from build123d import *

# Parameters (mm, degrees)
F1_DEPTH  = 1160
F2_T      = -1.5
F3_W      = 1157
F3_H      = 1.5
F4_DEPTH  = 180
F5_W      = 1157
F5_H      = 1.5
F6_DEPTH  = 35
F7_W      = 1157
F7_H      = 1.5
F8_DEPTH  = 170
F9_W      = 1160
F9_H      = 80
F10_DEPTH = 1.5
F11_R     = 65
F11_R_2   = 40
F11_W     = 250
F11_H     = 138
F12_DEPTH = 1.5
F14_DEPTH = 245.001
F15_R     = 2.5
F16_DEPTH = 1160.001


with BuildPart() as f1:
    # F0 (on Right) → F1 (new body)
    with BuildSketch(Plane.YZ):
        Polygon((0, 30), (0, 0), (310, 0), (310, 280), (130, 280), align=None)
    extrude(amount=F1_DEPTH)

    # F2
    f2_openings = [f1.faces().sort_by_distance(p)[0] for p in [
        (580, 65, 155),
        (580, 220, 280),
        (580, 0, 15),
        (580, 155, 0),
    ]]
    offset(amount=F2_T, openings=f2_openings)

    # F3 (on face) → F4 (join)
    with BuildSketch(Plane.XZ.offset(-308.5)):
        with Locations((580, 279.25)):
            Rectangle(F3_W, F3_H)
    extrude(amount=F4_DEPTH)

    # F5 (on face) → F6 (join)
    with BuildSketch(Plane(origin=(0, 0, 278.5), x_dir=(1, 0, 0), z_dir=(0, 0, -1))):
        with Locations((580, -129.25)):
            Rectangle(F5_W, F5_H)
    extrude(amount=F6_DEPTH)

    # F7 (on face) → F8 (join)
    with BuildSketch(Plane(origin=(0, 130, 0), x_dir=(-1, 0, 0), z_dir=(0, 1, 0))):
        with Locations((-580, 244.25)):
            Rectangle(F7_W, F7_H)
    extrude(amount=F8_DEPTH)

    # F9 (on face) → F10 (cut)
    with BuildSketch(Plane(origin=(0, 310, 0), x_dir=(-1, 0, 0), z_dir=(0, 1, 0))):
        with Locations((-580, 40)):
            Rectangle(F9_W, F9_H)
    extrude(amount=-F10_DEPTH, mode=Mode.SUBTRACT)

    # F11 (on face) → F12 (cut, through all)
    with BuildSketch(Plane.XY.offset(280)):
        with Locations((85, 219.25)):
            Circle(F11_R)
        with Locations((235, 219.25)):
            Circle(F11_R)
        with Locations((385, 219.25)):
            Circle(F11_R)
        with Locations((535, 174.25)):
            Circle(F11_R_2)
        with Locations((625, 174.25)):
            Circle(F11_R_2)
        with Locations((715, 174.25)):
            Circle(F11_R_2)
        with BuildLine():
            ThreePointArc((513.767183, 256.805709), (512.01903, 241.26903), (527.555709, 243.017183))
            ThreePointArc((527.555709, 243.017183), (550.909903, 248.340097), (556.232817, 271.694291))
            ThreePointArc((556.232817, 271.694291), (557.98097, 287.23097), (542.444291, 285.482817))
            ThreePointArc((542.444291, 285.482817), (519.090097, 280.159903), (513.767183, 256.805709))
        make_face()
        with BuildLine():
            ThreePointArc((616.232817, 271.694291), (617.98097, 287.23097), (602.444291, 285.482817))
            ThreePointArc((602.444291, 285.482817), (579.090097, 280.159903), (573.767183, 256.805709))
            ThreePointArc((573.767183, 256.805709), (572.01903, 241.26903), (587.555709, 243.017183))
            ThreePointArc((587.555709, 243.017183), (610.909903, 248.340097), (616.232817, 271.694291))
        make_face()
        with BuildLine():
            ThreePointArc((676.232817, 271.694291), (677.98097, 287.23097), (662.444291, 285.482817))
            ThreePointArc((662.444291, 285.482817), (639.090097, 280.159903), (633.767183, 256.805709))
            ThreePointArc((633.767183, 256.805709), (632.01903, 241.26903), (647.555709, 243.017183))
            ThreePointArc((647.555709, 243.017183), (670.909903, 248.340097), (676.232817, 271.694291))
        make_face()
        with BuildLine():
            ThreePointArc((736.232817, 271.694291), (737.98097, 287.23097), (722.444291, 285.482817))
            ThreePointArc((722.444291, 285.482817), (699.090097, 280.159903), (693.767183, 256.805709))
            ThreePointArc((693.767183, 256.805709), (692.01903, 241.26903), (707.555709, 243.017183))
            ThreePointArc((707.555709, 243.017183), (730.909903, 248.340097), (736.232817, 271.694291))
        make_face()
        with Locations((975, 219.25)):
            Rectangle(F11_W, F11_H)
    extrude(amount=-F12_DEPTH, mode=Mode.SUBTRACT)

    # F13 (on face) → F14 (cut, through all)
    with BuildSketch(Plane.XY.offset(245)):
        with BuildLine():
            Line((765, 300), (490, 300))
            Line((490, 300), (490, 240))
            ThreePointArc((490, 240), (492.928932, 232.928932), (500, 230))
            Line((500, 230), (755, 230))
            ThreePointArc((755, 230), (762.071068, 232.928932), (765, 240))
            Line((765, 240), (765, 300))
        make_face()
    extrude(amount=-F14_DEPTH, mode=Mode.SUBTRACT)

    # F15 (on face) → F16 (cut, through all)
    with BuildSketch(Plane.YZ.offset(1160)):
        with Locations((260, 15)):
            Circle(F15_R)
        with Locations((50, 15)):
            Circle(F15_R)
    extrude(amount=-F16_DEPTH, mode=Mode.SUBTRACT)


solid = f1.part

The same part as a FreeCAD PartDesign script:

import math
import FreeCAD as App
import Part
import Sketcher

V = App.Vector


def faces_at(feature, points):
    """Names of the faces that lie closest to the given points."""
    faces = feature.Shape.Faces
    near = lambda p: min(range(len(faces)), key=lambda i: faces[i].distToShape(Part.Vertex(*p))[0])
    return sorted({f"Face{near(p) + 1}" for p in points})

doc = App.newDocument("Part")
body = doc.addObject("PartDesign::Body", "Body")

# Sketch on YZ plane
sketch1 = body.newObject("Sketcher::SketchObject", "Sketch")
sketch1.AttachmentSupport = (doc.getObject("YZ_Plane"), [""])
sketch1.MapMode = "FlatFace"
sketch1.addGeometry([
    Part.LineSegment(V(0, 30, 0), V(0, 0, 0)),  # 0
    Part.LineSegment(V(0, 0, 0), V(310, 0, 0)),  # 1
    Part.LineSegment(V(310, 0, 0), V(310, 280, 0)),  # 2
    Part.LineSegment(V(310, 280, 0), V(130, 280, 0)),  # 3
    Part.LineSegment(V(130, 280, 0), V(0, 30, 0)),  # 4
], False)
sketch1.addConstraint([
    Sketcher.Constraint("Coincident", 0, 2, 1, 1),
    Sketcher.Constraint("Coincident", 1, 2, 2, 1),
    Sketcher.Constraint("Coincident", 2, 2, 3, 1),
    Sketcher.Constraint("Coincident", 3, 2, 4, 1),
    Sketcher.Constraint("Coincident", 4, 2, 0, 1),
    Sketcher.Constraint("Vertical", 0),
    Sketcher.Constraint("Horizontal", 1),
    Sketcher.Constraint("Vertical", 2),
    Sketcher.Constraint("Horizontal", 3),
    Sketcher.Constraint("Coincident", 0, 2, -1, 1),
    Sketcher.Constraint("DistanceX", 1, 1, 1, 2, 310.0),
    Sketcher.Constraint("DistanceX", 3, 2, 3, 1, 180.0),
    Sketcher.Constraint("DistanceY", 0, 2, 0, 1, 30.0),
    Sketcher.Constraint("DistanceY", 2, 1, 2, 2, 280.0),
])
pad1 = body.newObject("PartDesign::Pad", "Pad")
pad1.Profile = sketch1
pad1.Length = 1160
doc.recompute()

thickness = body.newObject("PartDesign::Thickness", "Thickness")
thickness.Base = (pad1, faces_at(pad1, [
    (580, 65, 155),
    (580, 220, 280),
    (580, 0, 15),
    (580, 155, 0),
]))
thickness.Value = 1.5
thickness.Reversed = True
thickness.Join = "Arc"

# Sketch on XZ plane
sketch2 = body.newObject("Sketcher::SketchObject", "Sketch001")
sketch2.AttachmentSupport = (doc.getObject("XZ_Plane"), [""])
sketch2.MapMode = "FlatFace"
sketch2.AttachmentOffset = App.Placement(V(0, 0, -308.5), App.Rotation())
sketch2.addGeometry([
    Part.LineSegment(V(1.5, 280, 0), V(1.5, 278.5, 0)),
    Part.LineSegment(V(1.5, 278.5, 0), V(1158.5, 278.5, 0)),
    Part.LineSegment(V(1158.5, 278.5, 0), V(1158.5, 280, 0)),
    Part.LineSegment(V(1158.5, 280, 0), V(1.5, 280, 0)),
], False)
sketch2.addConstraint([
    Sketcher.Constraint("Coincident", 0, 2, 1, 1),
    Sketcher.Constraint("Coincident", 1, 2, 2, 1),
    Sketcher.Constraint("Coincident", 2, 2, 3, 1),
    Sketcher.Constraint("Coincident", 3, 2, 0, 1),
    Sketcher.Constraint("Vertical", 0),
    Sketcher.Constraint("Horizontal", 1),
    Sketcher.Constraint("Vertical", 2),
    Sketcher.Constraint("Horizontal", 3),
    Sketcher.Constraint("DistanceX", 1, 1, 1, 2, 1157.0),
    Sketcher.Constraint("DistanceY", 0, 2, 0, 1, 1.5),
    Sketcher.Constraint("DistanceY", -1, 1, 2, 2, 280.0),
    Sketcher.Constraint("DistanceX", -1, 1, 0, 2, 1.5),
])
pad2 = body.newObject("PartDesign::Pad", "Pad001")
pad2.Profile = sketch2
pad2.Length = 180

# Sketch on XY plane
sketch3 = body.newObject("Sketcher::SketchObject", "Sketch002")
sketch3.AttachmentSupport = (doc.getObject("XY_Plane"), [""])
sketch3.MapMode = "FlatFace"
sketch3.AttachmentOffset = App.Placement(V(0, 0, 278.5), App.Rotation())
sketch3.addGeometry([
    Part.LineSegment(V(1.5, 128.5, 0), V(1.5, 130, 0)),
    Part.LineSegment(V(1.5, 130, 0), V(1158.5, 130, 0)),
    Part.LineSegment(V(1158.5, 130, 0), V(1158.5, 128.5, 0)),
    Part.LineSegment(V(1158.5, 128.5, 0), V(1.5, 128.5, 0)),
], False)
sketch3.addConstraint([
    Sketcher.Constraint("Coincident", 0, 2, 1, 1),
    Sketcher.Constraint("Coincident", 1, 2, 2, 1),
    Sketcher.Constraint("Coincident", 2, 2, 3, 1),
    Sketcher.Constraint("Coincident", 3, 2, 0, 1),
    Sketcher.Constraint("Vertical", 0),
    Sketcher.Constraint("Horizontal", 1),
    Sketcher.Constraint("Vertical", 2),
    Sketcher.Constraint("Horizontal", 3),
    Sketcher.Constraint("DistanceX", 1, 1, 1, 2, 1157.0),
    Sketcher.Constraint("DistanceY", 0, 1, 0, 2, 1.5),
    Sketcher.Constraint("DistanceY", -1, 1, 0, 2, 130.0),
    Sketcher.Constraint("DistanceX", -1, 1, 0, 2, 1.5),
])
pad3 = body.newObject("PartDesign::Pad", "Pad002")
pad3.Profile = sketch3
pad3.Length = 35
pad3.Reversed = True

# Sketch on XZ plane
sketch4 = body.newObject("Sketcher::SketchObject", "Sketch003")
sketch4.AttachmentSupport = (doc.getObject("XZ_Plane"), [""])
sketch4.MapMode = "FlatFace"
sketch4.AttachmentOffset = App.Placement(V(0, 0, -130), App.Rotation())
sketch4.addGeometry([
    Part.LineSegment(V(1158.5, 245, 0), V(1158.5, 243.5, 0)),
    Part.LineSegment(V(1158.5, 243.5, 0), V(1.5, 243.5, 0)),
    Part.LineSegment(V(1.5, 243.5, 0), V(1.5, 245, 0)),
    Part.LineSegment(V(1.5, 245, 0), V(1158.5, 245, 0)),
], False)
sketch4.addConstraint([
    Sketcher.Constraint("Coincident", 0, 2, 1, 1),
    Sketcher.Constraint("Coincident", 1, 2, 2, 1),
    Sketcher.Constraint("Coincident", 2, 2, 3, 1),
    Sketcher.Constraint("Coincident", 3, 2, 0, 1),
    Sketcher.Constraint("Vertical", 0),
    Sketcher.Constraint("Horizontal", 1),
    Sketcher.Constraint("Vertical", 2),
    Sketcher.Constraint("Horizontal", 3),
    Sketcher.Constraint("DistanceX", 1, 2, 1, 1, 1157.0),
    Sketcher.Constraint("DistanceY", 0, 2, 0, 1, 1.5),
    Sketcher.Constraint("DistanceY", -1, 1, 2, 2, 245.0),
    Sketcher.Constraint("DistanceX", -1, 1, 0, 2, 1158.5),
])
pad4 = body.newObject("PartDesign::Pad", "Pad003")
pad4.Profile = sketch4
pad4.Length = 170
pad4.Reversed = True

# Sketch on XZ plane
sketch5 = body.newObject("Sketcher::SketchObject", "Sketch004")
sketch5.AttachmentSupport = (doc.getObject("XZ_Plane"), [""])
sketch5.MapMode = "FlatFace"
sketch5.AttachmentOffset = App.Placement(V(0, 0, -310), App.Rotation())
sketch5.addGeometry([
    Part.LineSegment(V(1160, 80, 0), V(1160, 0, 0)),
    Part.LineSegment(V(1160, 0, 0), V(0, 0, 0)),
    Part.LineSegment(V(0, 0, 0), V(0, 80, 0)),
    Part.LineSegment(V(0, 80, 0), V(1160, 80, 0)),
], False)
sketch5.addConstraint([
    Sketcher.Constraint("Coincident", 0, 2, 1, 1),
    Sketcher.Constraint("Coincident", 1, 2, 2, 1),
    Sketcher.Constraint("Coincident", 2, 2, 3, 1),
    Sketcher.Constraint("Coincident", 3, 2, 0, 1),
    Sketcher.Constraint("Vertical", 0),
    Sketcher.Constraint("Horizontal", 1),
    Sketcher.Constraint("Vertical", 2),
    Sketcher.Constraint("Horizontal", 3),
    Sketcher.Constraint("Coincident", 1, 2, -1, 1),
    Sketcher.Constraint("DistanceX", 1, 2, 1, 1, 1160.0),
    Sketcher.Constraint("DistanceY", 0, 2, 0, 1, 80.0),
])
pocket1 = body.newObject("PartDesign::Pocket", "Pocket")
pocket1.Profile = sketch5
pocket1.Length = 1.5
pocket1.Reversed = True

# Sketch on XY plane
sketch6 = body.newObject("Sketcher::SketchObject", "Sketch005")
sketch6.AttachmentSupport = (doc.getObject("XY_Plane"), [""])
sketch6.MapMode = "FlatFace"
sketch6.AttachmentOffset = App.Placement(V(0, 0, 280), App.Rotation())
sketch6.addGeometry([
    Part.Circle(V(85, 219, 0), V(0, 0, 1), 65),  # 0
    Part.Circle(V(235, 219, 0), V(0, 0, 1), 65),  # 1
    Part.Circle(V(385, 219, 0), V(0, 0, 1), 65),  # 2
    Part.Circle(V(535, 174, 0), V(0, 0, 1), 40),  # 3
    Part.Circle(V(625, 174, 0), V(0, 0, 1), 40),  # 4
    Part.Circle(V(715, 174, 0), V(0, 0, 1), 40),  # 5
    Part.ArcOfCircle(Part.Circle(V(519, 248, 0), V(0, 0, 1), 10), math.radians(122), math.radians(328)),  # 6
    Part.ArcOfCircle(Part.Circle(V(535, 264, 0), V(0, 0, 1), 22), math.radians(-109), math.radians(19)),  # 7
    Part.ArcOfCircle(Part.Circle(V(551, 280, 0), V(0, 0, 1), 10), math.radians(-58), math.radians(148)),  # 8
    Part.ArcOfCircle(Part.Circle(V(535, 264, 0), V(0, 0, 1), 22), math.radians(71), math.radians(199)),  # 9
    Part.ArcOfCircle(Part.Circle(V(611, 280, 0), V(0, 0, 1), 10), math.radians(-58), math.radians(148)),  # 10
    Part.ArcOfCircle(Part.Circle(V(595, 264, 0), V(0, 0, 1), 22), math.radians(71), math.radians(199)),  # 11
    Part.ArcOfCircle(Part.Circle(V(579, 248, 0), V(0, 0, 1), 10), math.radians(122), math.radians(328)),  # 12
    Part.ArcOfCircle(Part.Circle(V(595, 264, 0), V(0, 0, 1), 22), math.radians(-109), math.radians(19)),  # 13
    Part.ArcOfCircle(Part.Circle(V(671, 280, 0), V(0, 0, 1), 10), math.radians(-58), math.radians(148)),  # 14
    Part.ArcOfCircle(Part.Circle(V(655, 264, 0), V(0, 0, 1), 22), math.radians(71), math.radians(199)),  # 15
    Part.ArcOfCircle(Part.Circle(V(639, 248, 0), V(0, 0, 1), 10), math.radians(122), math.radians(328)),  # 16
    Part.ArcOfCircle(Part.Circle(V(655, 264, 0), V(0, 0, 1), 22), math.radians(-109), math.radians(19)),  # 17
    Part.ArcOfCircle(Part.Circle(V(731, 280, 0), V(0, 0, 1), 10), math.radians(-58), math.radians(148)),  # 18
    Part.ArcOfCircle(Part.Circle(V(715, 264, 0), V(0, 0, 1), 22), math.radians(71), math.radians(199)),  # 19
    Part.ArcOfCircle(Part.Circle(V(699, 248, 0), V(0, 0, 1), 10), math.radians(122), math.radians(328)),  # 20
    Part.ArcOfCircle(Part.Circle(V(715, 264, 0), V(0, 0, 1), 22), math.radians(-109), math.radians(19)),  # 21
    Part.LineSegment(V(850, 288, 0), V(850, 150, 0)),  # 22
    Part.LineSegment(V(850, 150, 0), V(1100, 150, 0)),  # 23
    Part.LineSegment(V(1100, 150, 0), V(1100, 288, 0)),  # 24
    Part.LineSegment(V(1100, 288, 0), V(850, 288, 0)),  # 25
], False)
sketch6.addConstraint([
    Sketcher.Constraint("Coincident", 6, 2, 7, 1),
    Sketcher.Constraint("Coincident", 7, 2, 8, 1),
    Sketcher.Constraint("Coincident", 8, 2, 9, 1),
    Sketcher.Constraint("Coincident", 9, 2, 6, 1),
    Sketcher.Constraint("Coincident", 10, 2, 11, 1),
    Sketcher.Constraint("Coincident", 11, 2, 12, 1),
    Sketcher.Constraint("Coincident", 12, 2, 13, 1),
    Sketcher.Constraint("Coincident", 13, 2, 10, 1),
    Sketcher.Constraint("Coincident", 14, 2, 15, 1),
    Sketcher.Constraint("Coincident", 15, 2, 16, 1),
    Sketcher.Constraint("Coincident", 16, 2, 17, 1),
    Sketcher.Constraint("Coincident", 17, 2, 14, 1),
    Sketcher.Constraint("Coincident", 18, 2, 19, 1),
    Sketcher.Constraint("Coincident", 19, 2, 20, 1),
    Sketcher.Constraint("Coincident", 20, 2, 21, 1),
    Sketcher.Constraint("Coincident", 21, 2, 18, 1),
    Sketcher.Constraint("Coincident", 22, 2, 23, 1),
    Sketcher.Constraint("Coincident", 23, 2, 24, 1),
    Sketcher.Constraint("Coincident", 24, 2, 25, 1),
    Sketcher.Constraint("Coincident", 25, 2, 22, 1),
    Sketcher.Constraint("Vertical", 22),
    Sketcher.Constraint("Horizontal", 23),
    Sketcher.Constraint("Vertical", 24),
    Sketcher.Constraint("Horizontal", 25),
    Sketcher.Constraint("Coincident", 9, 3, 7, 3),
    Sketcher.Constraint("Coincident", 13, 3, 11, 3),
    Sketcher.Constraint("Coincident", 17, 3, 15, 3),
    Sketcher.Constraint("Coincident", 21, 3, 19, 3),
    Sketcher.Constraint("Equal", 0, 1),
    Sketcher.Constraint("Equal", 1, 2),
    Sketcher.Constraint("Equal", 3, 4),
    Sketcher.Constraint("Equal", 4, 5),
    Sketcher.Constraint("Equal", 6, 8),
    Sketcher.Constraint("Equal", 7, 9),
    Sketcher.Constraint("Equal", 8, 10),
    Sketcher.Constraint("Equal", 9, 11),
    Sketcher.Constraint("Equal", 10, 12),
    Sketcher.Constraint("Equal", 11, 13),
    Sketcher.Constraint("Equal", 12, 14),
    Sketcher.Constraint("Equal", 13, 15),
    Sketcher.Constraint("Equal", 14, 16),
    Sketcher.Constraint("Equal", 15, 17),
    Sketcher.Constraint("Equal", 16, 18),
    Sketcher.Constraint("Equal", 17, 19),
    Sketcher.Constraint("Equal", 18, 20),
    Sketcher.Constraint("Equal", 19, 21),
    Sketcher.Constraint("Horizontal", 0, 3, 1, 3),
    Sketcher.Constraint("Horizontal", 1, 3, 2, 3),
    Sketcher.Constraint("Horizontal", 3, 3, 4, 3),
    Sketcher.Constraint("Horizontal", 4, 3, 5, 3),
    Sketcher.Constraint("Horizontal", 8, 3, 10, 3),
    Sketcher.Constraint("Horizontal", 9, 3, 11, 3),
    Sketcher.Constraint("Horizontal", 6, 3, 12, 3),
    Sketcher.Constraint("Horizontal", 10, 3, 14, 3),
    Sketcher.Constraint("Horizontal", 11, 3, 15, 3),
    Sketcher.Constraint("Horizontal", 12, 3, 16, 3),
    Sketcher.Constraint("Horizontal", 14, 3, 18, 3),
    Sketcher.Constraint("Horizontal", 15, 3, 19, 3),
    Sketcher.Constraint("Horizontal", 16, 3, 20, 3),
    Sketcher.Constraint("Horizontal", 8, 2, 10, 2),
    Sketcher.Constraint("Horizontal", 9, 2, 11, 2),
    Sketcher.Constraint("Horizontal", 10, 2, 14, 2),
    Sketcher.Constraint("Horizontal", 11, 2, 15, 2),
    Sketcher.Constraint("Horizontal", 14, 2, 18, 2),
    Sketcher.Constraint("Horizontal", 15, 2, 19, 2),
    Sketcher.Constraint("Vertical", 3, 3, 7, 3),
    Sketcher.Constraint("Vertical", 5, 3, 19, 3),
    Sketcher.Constraint("Diameter", 0, 130.0),
    Sketcher.Constraint("Diameter", 3, 80.0),
    Sketcher.Constraint("Radius", 6, 10.0),
    Sketcher.Constraint("Radius", 7, 22.499999),
    Sketcher.Constraint("DistanceX", 23, 1, 23, 2, 250.0),
    Sketcher.Constraint("DistanceY", 22, 2, 22, 1, 138.0),
    Sketcher.Constraint("DistanceX", -1, 1, 0, 3, 85.0),
    Sketcher.Constraint("DistanceX", -1, 1, 1, 3, 235.0),
    Sketcher.Constraint("DistanceX", -1, 1, 2, 3, 385.0),
    Sketcher.Constraint("DistanceX", -1, 1, 3, 3, 535.0),
    Sketcher.Constraint("DistanceX", -1, 1, 4, 3, 625.0),
    Sketcher.Constraint("DistanceX", -1, 1, 5, 3, 715.0),
    Sketcher.Constraint("DistanceX", -1, 1, 11, 3, 594.999999),
    Sketcher.Constraint("DistanceX", -1, 1, 15, 3, 654.999999),
    Sketcher.Constraint("DistanceX", -1, 1, 22, 2, 850.0),
    Sketcher.Constraint("DistanceY", 3, 3, 2, 3, 45.0),
    Sketcher.Constraint("DistanceY", 3, 3, 7, 3, 89.999999),
    Sketcher.Constraint("DistanceY", 22, 2, 5, 3, 24.0),
    Sketcher.Constraint("DistanceY", -1, 1, 0, 3, 219.25),
    Sketcher.Constraint("DistanceY", 6, 3, 7, 3, 15.909901),
    Sketcher.Constraint("DistanceX", 7, 3, 8, 3, 15.909901),
    Sketcher.Constraint("DistanceX", 6, 3, 9, 3, 15.909901),
    Sketcher.Constraint("DistanceY", 9, 3, 8, 3, 15.909901),
])
pocket2 = body.newObject("PartDesign::Pocket", "Pocket001")
pocket2.Profile = sketch6
pocket2.Length = 1.5

# Sketch on XY plane
sketch7 = body.newObject("Sketcher::SketchObject", "Sketch006")
sketch7.AttachmentSupport = (doc.getObject("XY_Plane"), [""])
sketch7.MapMode = "FlatFace"
sketch7.AttachmentOffset = App.Placement(V(0, 0, 245), App.Rotation())
sketch7.addGeometry([
    Part.LineSegment(V(765, 300, 0), V(490, 300, 0)),  # 0
    Part.LineSegment(V(490, 300, 0), V(490, 240, 0)),  # 1
    Part.ArcOfCircle(Part.Circle(V(500, 240, 0), V(0, 0, 1), 10), math.radians(180), math.radians(270)),  # 2
    Part.LineSegment(V(500, 230, 0), V(755, 230, 0)),  # 3
    Part.ArcOfCircle(Part.Circle(V(755, 240, 0), V(0, 0, 1), 10), math.radians(-90), math.radians(0)),  # 4
    Part.LineSegment(V(765, 240, 0), V(765, 300, 0)),  # 5
], False)
sketch7.addConstraint([
    Sketcher.Constraint("Coincident", 0, 2, 1, 1),
    Sketcher.Constraint("Tangent", 1, 2, 2, 1),
    Sketcher.Constraint("Tangent", 2, 2, 3, 1),
    Sketcher.Constraint("Tangent", 3, 2, 4, 1),
    Sketcher.Constraint("Tangent", 4, 2, 5, 1),
    Sketcher.Constraint("Coincident", 5, 2, 0, 1),
    Sketcher.Constraint("Horizontal", 0),
    Sketcher.Constraint("Vertical", 1),
    Sketcher.Constraint("Horizontal", 3),
    Sketcher.Constraint("Vertical", 5),
    Sketcher.Constraint("Equal", 2, 4),
    Sketcher.Constraint("Radius", 2, 9.999999),
    Sketcher.Constraint("DistanceX", 0, 2, 0, 1, 275.0),
    Sketcher.Constraint("DistanceY", 1, 2, 1, 1, 60.0),
    Sketcher.Constraint("DistanceX", -1, 1, 2, 3, 499.999999),
    Sketcher.Constraint("DistanceY", -1, 1, 2, 3, 239.999999),
])
pocket3 = body.newObject("PartDesign::Pocket", "Pocket002")
pocket3.Profile = sketch7
pocket3.Type = "ThroughAll"

# Sketch on YZ plane
sketch8 = body.newObject("Sketcher::SketchObject", "Sketch007")
sketch8.AttachmentSupport = (doc.getObject("YZ_Plane"), [""])
sketch8.MapMode = "FlatFace"
sketch8.AttachmentOffset = App.Placement(V(0, 0, 1160), App.Rotation())
sketch8.addGeometry([
    Part.Circle(V(260, 15, 0), V(0, 0, 1), 2.5),
    Part.Circle(V(50, 15, 0), V(0, 0, 1), 2.5),
], False)
sketch8.addConstraint([
    Sketcher.Constraint("Equal", 0, 1),
    Sketcher.Constraint("Horizontal", 0, 3, 1, 3),
    Sketcher.Constraint("Diameter", 0, 5.0),
    Sketcher.Constraint("DistanceX", -1, 1, 0, 3, 260.0),
    Sketcher.Constraint("DistanceY", -1, 1, 0, 3, 15.0),
    Sketcher.Constraint("DistanceX", -1, 1, 1, 3, 50.0),
])
pocket4 = body.newObject("PartDesign::Pocket", "Pocket003")
pocket4.Profile = sketch8
pocket4.Type = "ThroughAll"

doc.recompute()
